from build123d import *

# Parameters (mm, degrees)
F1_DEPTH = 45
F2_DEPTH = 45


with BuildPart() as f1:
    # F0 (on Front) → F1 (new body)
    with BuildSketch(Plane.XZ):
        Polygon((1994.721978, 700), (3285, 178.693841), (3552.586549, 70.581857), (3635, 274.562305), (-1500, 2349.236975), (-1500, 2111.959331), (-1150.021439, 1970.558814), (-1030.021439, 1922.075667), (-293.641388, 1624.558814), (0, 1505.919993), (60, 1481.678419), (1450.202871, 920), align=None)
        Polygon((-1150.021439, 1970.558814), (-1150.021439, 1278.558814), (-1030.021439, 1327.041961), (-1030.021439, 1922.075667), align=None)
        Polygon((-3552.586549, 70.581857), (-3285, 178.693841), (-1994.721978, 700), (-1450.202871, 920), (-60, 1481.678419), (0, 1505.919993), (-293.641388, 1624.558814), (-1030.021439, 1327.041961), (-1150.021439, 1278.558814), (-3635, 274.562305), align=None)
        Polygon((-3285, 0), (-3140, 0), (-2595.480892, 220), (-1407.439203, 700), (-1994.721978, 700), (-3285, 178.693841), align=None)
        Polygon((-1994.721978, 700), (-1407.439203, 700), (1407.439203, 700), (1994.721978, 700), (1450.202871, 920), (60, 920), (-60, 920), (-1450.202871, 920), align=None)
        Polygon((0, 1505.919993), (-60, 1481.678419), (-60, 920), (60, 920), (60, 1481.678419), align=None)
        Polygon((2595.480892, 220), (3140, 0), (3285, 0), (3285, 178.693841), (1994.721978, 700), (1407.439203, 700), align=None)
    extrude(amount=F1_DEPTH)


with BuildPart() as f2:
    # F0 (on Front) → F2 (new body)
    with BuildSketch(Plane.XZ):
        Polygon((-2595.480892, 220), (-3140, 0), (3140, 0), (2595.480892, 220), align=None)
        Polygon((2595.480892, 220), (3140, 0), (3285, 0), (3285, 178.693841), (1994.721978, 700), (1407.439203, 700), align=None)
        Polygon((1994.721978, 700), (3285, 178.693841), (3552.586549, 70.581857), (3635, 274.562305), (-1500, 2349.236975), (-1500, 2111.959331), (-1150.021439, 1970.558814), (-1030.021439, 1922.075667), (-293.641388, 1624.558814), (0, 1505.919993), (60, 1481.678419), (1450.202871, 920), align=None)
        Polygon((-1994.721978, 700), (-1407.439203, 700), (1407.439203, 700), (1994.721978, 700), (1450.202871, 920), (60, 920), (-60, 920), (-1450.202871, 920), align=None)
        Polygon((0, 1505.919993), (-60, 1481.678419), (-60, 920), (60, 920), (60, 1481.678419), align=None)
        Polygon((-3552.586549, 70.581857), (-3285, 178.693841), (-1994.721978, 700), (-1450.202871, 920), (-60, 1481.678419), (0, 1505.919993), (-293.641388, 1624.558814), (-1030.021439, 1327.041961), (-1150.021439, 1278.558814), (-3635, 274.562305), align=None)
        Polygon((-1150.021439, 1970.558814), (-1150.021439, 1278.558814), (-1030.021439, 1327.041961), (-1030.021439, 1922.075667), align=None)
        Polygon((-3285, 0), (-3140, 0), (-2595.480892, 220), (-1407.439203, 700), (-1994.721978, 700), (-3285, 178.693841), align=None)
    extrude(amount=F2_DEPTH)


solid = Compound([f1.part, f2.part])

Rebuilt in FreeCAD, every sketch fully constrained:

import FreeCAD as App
import Part
import Sketcher

V = App.Vector
Q = App.Units.Quantity

doc = App.newDocument("Part")
body = doc.addObject("PartDesign::Body", "Body")

# Sketch on XZ plane
sketch1 = body.newObject("Sketcher::SketchObject", "Sketch")
sketch1.AttachmentSupport = (doc.getObject("XZ_Plane"), [""])
sketch1.MapMode = "FlatFace"
sketch1.addGeometry(Part.LineSegment(V(3285, 178.693841, 0), V(3552.586549, 70.581857, 0)), False)
sketch1.addGeometry(Part.LineSegment(V(3552.586549, 70.581857, 0), V(3635, 274.562305, 0)), False)
sketch1.addGeometry(Part.LineSegment(V(3635, 274.562305, 0), V(-1500, 2349.236975, 0)), False)
sketch1.addGeometry(Part.LineSegment(V(-1500, 2349.236975, 0), V(-1500, 2111.959331, 0)), False)
sketch1.addGeometry(Part.LineSegment(V(-1500, 2111.959331, 0), V(-1150.021439, 1970.558814, 0)), False)
sketch1.addGeometry(Part.LineSegment(V(-1150.021439, 1970.558814, 0), V(-1150.021439, 1278.558814, 0)), False)
sketch1.addGeometry(Part.LineSegment(V(-1150.021439, 1278.558814, 0), V(-3635, 274.562305, 0)), False)
sketch1.addGeometry(Part.LineSegment(V(-3635, 274.562305, 0), V(-3552.586549, 70.581857, 0)), False)
sketch1.addGeometry(Part.LineSegment(V(-3552.586549, 70.581857, 0), V(-3285, 178.693841, 0)), False)
sketch1.addGeometry(Part.LineSegment(V(-3285, 178.693841, 0), V(-3285, 0, 0)), False)
sketch1.addGeometry(Part.LineSegment(V(-3285, 0, 0), V(-3140, 0, 0)), False)
sketch1.addGeometry(Part.LineSegment(V(-3140, 0, 0), V(-2595.480892, 220, 0)), False)
sketch1.addGeometry(Part.LineSegment(V(-2595.480892, 220, 0), V(-1407.439203, 700, 0)), False)
sketch1.addGeometry(Part.LineSegment(V(-1407.439203, 700, 0), V(1407.439203, 700, 0)), False)
sketch1.addGeometry(Part.LineSegment(V(1407.439203, 700, 0), V(2595.480892, 220, 0)), False)
sketch1.addGeometry(Part.LineSegment(V(2595.480892, 220, 0), V(3140, 0, 0)), False)
sketch1.addGeometry(Part.LineSegment(V(3140, 0, 0), V(3285, 0, 0)), False)
sketch1.addGeometry(Part.LineSegment(V(3285, 0, 0), V(3285, 178.693841, 0)), False)
sketch1.addGeometry(Part.LineSegment(V(-1450.202871, 920, 0), V(-60, 1481.678419, 0)), False)
sketch1.addGeometry(Part.LineSegment(V(-60, 1481.678419, 0), V(-60, 920, 0)), False)
sketch1.addGeometry(Part.LineSegment(V(-60, 920, 0), V(-1450.202871, 920, 0)), False)
sketch1.addGeometry(Part.LineSegment(V(60, 1481.678419, 0), V(1450.202871, 920, 0)), False)
sketch1.addGeometry(Part.LineSegment(V(1450.202871, 920, 0), V(60, 920, 0)), False)
sketch1.addGeometry(Part.LineSegment(V(60, 920, 0), V(60, 1481.678419, 0)), False)
sketch1.addGeometry(Part.LineSegment(V(-1030.021439, 1327.041961, 0), V(-1030.021439, 1922.075667, 0)), False)
sketch1.addGeometry(Part.LineSegment(V(-1030.021439, 1922.075667, 0), V(-293.641388, 1624.558814, 0)), False)
sketch1.addGeometry(Part.LineSegment(V(-293.641388, 1624.558814, 0), V(-1030.021439, 1327.041961, 0)), False)
sketch1.addConstraint(Sketcher.Constraint("Coincident", 0, 2, 1, 1))
sketch1.addConstraint(Sketcher.Constraint("Coincident", 1, 2, 2, 1))
sketch1.addConstraint(Sketcher.Constraint("Coincident", 2, 2, 3, 1))
sketch1.addConstraint(Sketcher.Constraint("Coincident", 3, 2, 4, 1))
sketch1.addConstraint(Sketcher.Constraint("Coincident", 4, 2, 5, 1))
sketch1.addConstraint(Sketcher.Constraint("Coincident", 5, 2, 6, 1))
sketch1.addConstraint(Sketcher.Constraint("Coincident", 6, 2, 7, 1))
sketch1.addConstraint(Sketcher.Constraint("Coincident", 7, 2, 8, 1))
sketch1.addConstraint(Sketcher.Constraint("Coincident", 8, 2, 9, 1))
sketch1.addConstraint(Sketcher.Constraint("Coincident", 9, 2, 10, 1))
sketch1.addConstraint(Sketcher.Constraint("Coincident", 10, 2, 11, 1))
sketch1.addConstraint(Sketcher.Constraint("Coincident", 11, 2, 12, 1))
sketch1.addConstraint(Sketcher.Constraint("Coincident", 12, 2, 13, 1))
sketch1.addConstraint(Sketcher.Constraint("Coincident", 13, 2, 14, 1))
sketch1.addConstraint(Sketcher.Constraint("Coincident", 14, 2, 15, 1))
sketch1.addConstraint(Sketcher.Constraint("Coincident", 15, 2, 16, 1))
sketch1.addConstraint(Sketcher.Constraint("Coincident", 16, 2, 17, 1))
sketch1.addConstraint(Sketcher.Constraint("Coincident", 17, 2, 0, 1))
sketch1.addConstraint(Sketcher.Constraint("Coincident", 18, 2, 19, 1))
sketch1.addConstraint(Sketcher.Constraint("Coincident", 19, 2, 20, 1))
sketch1.addConstraint(Sketcher.Constraint("Coincident", 20, 2, 18, 1))
sketch1.addConstraint(Sketcher.Constraint("Coincident", 21, 2, 22, 1))
sketch1.addConstraint(Sketcher.Constraint("Coincident", 22, 2, 23, 1))
sketch1.addConstraint(Sketcher.Constraint("Coincident", 23, 2, 21, 1))
sketch1.addConstraint(Sketcher.Constraint("Coincident", 24, 2, 25, 1))
sketch1.addConstraint(Sketcher.Constraint("Coincident", 25, 2, 26, 1))
sketch1.addConstraint(Sketcher.Constraint("Coincident", 26, 2, 24, 1))
sketch1.addConstraint(Sketcher.Constraint("Vertical", 3))
sketch1.addConstraint(Sketcher.Constraint("Vertical", 5))
sketch1.addConstraint(Sketcher.Constraint("Vertical", 9))
sketch1.addConstraint(Sketcher.Constraint("Horizontal", 10))
sketch1.addConstraint(Sketcher.Constraint("Horizontal", 13))
sketch1.addConstraint(Sketcher.Constraint("Horizontal", 16))
sketch1.addConstraint(Sketcher.Constraint("Vertical", 17))
sketch1.addConstraint(Sketcher.Constraint("Vertical", 19))
sketch1.addConstraint(Sketcher.Constraint("Horizontal", 20))
sketch1.addConstraint(Sketcher.Constraint("Horizontal", 22))
sketch1.addConstraint(Sketcher.Constraint("Vertical", 23))
sketch1.addConstraint(Sketcher.Constraint("Vertical", 24))
sketch1.addConstraint(Sketcher.Constraint("Symmetric", 10, 2, 15, 2, -1, 1))
sketch1.addConstraint(Sketcher.Constraint("Symmetric", 1, 2, 6, 2, -2))
sketch1.addConstraint(Sketcher.Constraint("Symmetric", 0, 2, 7, 2, -2))
sketch1.addConstraint(Sketcher.Constraint("Symmetric", 11, 2, 14, 2, -2))
sketch1.addConstraint(Sketcher.Constraint("Symmetric", 9, 2, 16, 2, -2))
sketch1.addConstraint(Sketcher.Constraint("Symmetric", 20, 2, 21, 2, -2))
sketch1.addConstraint(Sketcher.Constraint("Symmetric", 18, 2, 23, 2, -2))
sketch1.addConstraint(Sketcher.Constraint("Perpendicular", 0, 1))
sketch1.addConstraint(Sketcher.Constraint("Perpendicular", 1, 2))
sketch1.addConstraint(Sketcher.Constraint("Parallel", 2, 4))
sketch1.addConstraint(Sketcher.Constraint("Perpendicular", 6, 7))
sketch1.addConstraint(Sketcher.Constraint("Perpendicular", 7, 8))
sketch1.addConstraint(Sketcher.Constraint("Parallel", 8, 11))
sketch1.addConstraint(Sketcher.Constraint("Parallel", 11, 12))
sketch1.addConstraint(Sketcher.Constraint("Parallel", 4, 14))
sketch1.addConstraint(Sketcher.Constraint("Parallel", 12, 18))
sketch1.addConstraint(Sketcher.Constraint("Parallel", 21, 25))
sketch1.addConstraint(Sketcher.Constraint("Parallel", 18, 26))
sketch1.addConstraint(Sketcher.Constraint("DistanceX", 10, 1, 10, 2, Q("145 mm")))
sketch1.addConstraint(Sketcher.Constraint("DistanceY", 5, 2, 5, 1, Q("692 mm")))
sketch1.addConstraint(Sketcher.Constraint("Angle", 0, Q("-22 deg")))
sketch1.addConstraint(Sketcher.Constraint("Distance", 1, Q("220 mm")))
sketch1.addConstraint(Sketcher.Constraint("DistanceX", -1, 1, 1, 2, Q("3635 mm")))
sketch1.addConstraint(Sketcher.Constraint("DistanceX", 2, 2, -1, 1, Q("1500 mm")))
sketch1.addConstraint(Sketcher.Constraint("DistanceX", 8, 2, -1, 1, Q("3285 mm")))
sketch1.addConstraint(Sketcher.Constraint("DistanceY", -1, 1, 11, 2, Q("220 mm")))
sketch1.addConstraint(Sketcher.Constraint("DistanceY", -1, 1, 12, 2, Q("700 mm")))
sketch1.addConstraint(Sketcher.Constraint("DistanceX", 18, 2, -1, 1, Q("60 mm")))
sketch1.addConstraint(Sketcher.Constraint("DistanceY", -1, 1, 19, 2, Q("920 mm")))
sketch1.addConstraint(Sketcher.Constraint("DistanceX", 4, 2, 24, 2, Q("120 mm")))
sketch1.addConstraint(Sketcher.Constraint("DistanceX", 20, 2, 20, 1, Q("1390.202871 mm")))
sketch1.addConstraint(Sketcher.Constraint("DistanceY", 9, 2, 9, 1, Q("178.693841 mm")))
sketch1.addConstraint(Sketcher.Constraint("Distance", 25, Q("794.211469 mm")))
sketch1.addConstraint(Sketcher.Constraint("DistanceY", 3, 2, 3, 1, Q("237.277644 mm")))
sketch1.addConstraint(Sketcher.Constraint("DistanceY", -1, 1, 26, 2, Q("1327.041961 mm")))
pad1 = body.newObject("PartDesign::Pad", "Pad")
pad1.Profile = sketch1
pad1.Length = 45
body2 = doc.addObject("PartDesign::Body", "Body001")

# Sketch on XZ plane
sketch2 = body2.newObject("Sketcher::SketchObject", "Sketch001")
sketch2.AttachmentSupport = (doc.getObject("XZ_Plane001"), [""])
sketch2.MapMode = "FlatFace"
sketch2.addGeometry(Part.LineSegment(V(3285, 0, 0), V(3285, 178.693841, 0)), False)
sketch2.addGeometry(Part.LineSegment(V(3285, 178.693841, 0), V(3552.586549, 70.581857, 0)), False)
sketch2.addGeometry(Part.LineSegment(V(3552.586549, 70.581857, 0), V(3635, 274.562305, 0)), False)
sketch2.addGeometry(Part.LineSegment(V(3635, 274.562305, 0), V(-1500, 2349.236975, 0)), False)
sketch2.addGeometry(Part.LineSegment(V(-1500, 2349.236975, 0), V(-1500, 2111.959331, 0)), False)
sketch2.addGeometry(Part.LineSegment(V(-1500, 2111.959331, 0), V(-1150.021439, 1970.558814, 0)), False)
sketch2.addGeometry(Part.LineSegment(V(-1150.021439, 1970.558814, 0), V(-1150.021439, 1278.558814, 0)), False)
sketch2.addGeometry(Part.LineSegment(V(-1150.021439, 1278.558814, 0), V(-3635, 274.562305, 0)), False)
sketch2.addGeometry(Part.LineSegment(V(-3635, 274.562305, 0), V(-3552.586549, 70.581857, 0)), False)
sketch2.addGeometry(Part.LineSegment(V(-3552.586549, 70.581857, 0), V(-3285, 178.693841, 0)), False)
sketch2.addGeometry(Part.LineSegment(V(-3285, 178.693841, 0), V(-3285, 0, 0)), False)
sketch2.addGeometry(Part.LineSegment(V(-3285, 0, 0), V(3285, 0, 0)), False)
sketch2.addGeometry(Part.LineSegment(V(-1407.439203, 700, 0), V(1407.439203, 700, 0)), False)
sketch2.addGeometry(Part.LineSegment(V(1407.439203, 700, 0), V(2595.480892, 220, 0)), False)
sketch2.addGeometry(Part.LineSegment(V(2595.480892, 220, 0), V(-2595.480892, 220, 0)), False)
sketch2.addGeometry(Part.LineSegment(V(-2595.480892, 220, 0), V(-1407.439203, 700, 0)), False)
sketch2.addGeometry(Part.LineSegment(V(-1030.021439, 1922.075667, 0), V(-293.641388, 1624.558814, 0)), False)
sketch2.addGeometry(Part.LineSegment(V(-293.641388, 1624.558814, 0), V(-1030.021439, 1327.041961, 0)), False)
sketch2.addGeometry(Part.LineSegment(V(-1030.021439, 1327.041961, 0), V(-1030.021439, 1922.075667, 0)), False)
sketch2.addGeometry(Part.LineSegment(V(-60, 1481.678419, 0), V(-60, 920, 0)), False)
sketch2.addGeometry(Part.LineSegment(V(-60, 920, 0), V(-1450.202871, 920, 0)), False)
sketch2.addGeometry(Part.LineSegment(V(-1450.202871, 920, 0), V(-60, 1481.678419, 0)), False)
sketch2.addGeometry(Part.LineSegment(V(60, 1481.678419, 0), V(1450.202871, 920, 0)), False)
sketch2.addGeometry(Part.LineSegment(V(1450.202871, 920, 0), V(60, 920, 0)), False)
sketch2.addGeometry(Part.LineSegment(V(60, 920, 0), V(60, 1481.678419, 0)), False)
sketch2.addConstraint(Sketcher.Constraint("Coincident", 0, 2, 1, 1))
sketch2.addConstraint(Sketcher.Constraint("Coincident", 1, 2, 2, 1))
sketch2.addConstraint(Sketcher.Constraint("Coincident", 2, 2, 3, 1))
sketch2.addConstraint(Sketcher.Constraint("Coincident", 3, 2, 4, 1))
sketch2.addConstraint(Sketcher.Constraint("Coincident", 4, 2, 5, 1))
sketch2.addConstraint(Sketcher.Constraint("Coincident", 5, 2, 6, 1))
sketch2.addConstraint(Sketcher.Constraint("Coincident", 6, 2, 7, 1))
sketch2.addConstraint(Sketcher.Constraint("Coincident", 7, 2, 8, 1))
sketch2.addConstraint(Sketcher.Constraint("Coincident", 8, 2, 9, 1))
sketch2.addConstraint(Sketcher.Constraint("Coincident", 9, 2, 10, 1))
sketch2.addConstraint(Sketcher.Constraint("Coincident", 10, 2, 11, 1))
sketch2.addConstraint(Sketcher.Constraint("Coincident", 11, 2, 0, 1))
sketch2.addConstraint(Sketcher.Constraint("Coincident", 12, 2, 13, 1))
sketch2.addConstraint(Sketcher.Constraint("Coincident", 13, 2, 14, 1))
sketch2.addConstraint(Sketcher.Constraint("Coincident", 14, 2, 15, 1))
sketch2.addConstraint(Sketcher.Constraint("Coincident", 15, 2, 12, 1))
sketch2.addConstraint(Sketcher.Constraint("Coincident", 16, 2, 17, 1))
sketch2.addConstraint(Sketcher.Constraint("Coincident", 17, 2, 18, 1))
sketch2.addConstraint(Sketcher.Constraint("Coincident", 18, 2, 16, 1))
sketch2.addConstraint(Sketcher.Constraint("Coincident", 19, 2, 20, 1))
sketch2.addConstraint(Sketcher.Constraint("Coincident", 20, 2, 21, 1))
sketch2.addConstraint(Sketcher.Constraint("Coincident", 21, 2, 19, 1))
sketch2.addConstraint(Sketcher.Constraint("Coincident", 22, 2, 23, 1))
sketch2.addConstraint(Sketcher.Constraint("Coincident", 23, 2, 24, 1))
sketch2.addConstraint(Sketcher.Constraint("Coincident", 24, 2, 22, 1))
sketch2.addConstraint(Sketcher.Constraint("Vertical", 0))
sketch2.addConstraint(Sketcher.Constraint("Vertical", 4))
sketch2.addConstraint(Sketcher.Constraint("Vertical", 6))
sketch2.addConstraint(Sketcher.Constraint("Vertical", 10))
sketch2.addConstraint(Sketcher.Constraint("Horizontal", 11))
sketch2.addConstraint(Sketcher.Constraint("Horizontal", 12))
sketch2.addConstraint(Sketcher.Constraint("Horizontal", 14))
sketch2.addConstraint(Sketcher.Constraint("Vertical", 18))
sketch2.addConstraint(Sketcher.Constraint("Vertical", 19))
sketch2.addConstraint(Sketcher.Constraint("Horizontal", 20))
sketch2.addConstraint(Sketcher.Constraint("Horizontal", 23))
sketch2.addConstraint(Sketcher.Constraint("Vertical", 24))
sketch2.addConstraint(Sketcher.Constraint("Symmetric", 10, 2, 11, 2, -1, 1))
sketch2.addConstraint(Sketcher.Constraint("Symmetric", 2, 2, 7, 2, -2))
sketch2.addConstraint(Sketcher.Constraint("Symmetric", 1, 2, 8, 2, -2))
sketch2.addConstraint(Sketcher.Constraint("Symmetric", 20, 2, 22, 2, -2))
sketch2.addConstraint(Sketcher.Constraint("Symmetric", 21, 2, 24, 2, -2))
sketch2.addConstraint(Sketcher.Constraint("Perpendicular", 1, 2))
sketch2.addConstraint(Sketcher.Constraint("Perpendicular", 2, 3))
sketch2.addConstraint(Sketcher.Constraint("Parallel", 3, 5))
sketch2.addConstraint(Sketcher.Constraint("Perpendicular", 7, 8))
sketch2.addConstraint(Sketcher.Constraint("Perpendicular", 8, 9))
sketch2.addConstraint(Sketcher.Constraint("Parallel", 5, 13))
sketch2.addConstraint(Sketcher.Constraint("Parallel", 9, 15))
sketch2.addConstraint(Sketcher.Constraint("Parallel", 13, 16))
sketch2.addConstraint(Sketcher.Constraint("Parallel", 15, 17))
sketch2.addConstraint(Sketcher.Constraint("Parallel", 17, 21))
sketch2.addConstraint(Sketcher.Constraint("DistanceX", 11, 1, 11, 2, Q("6570 mm")))
sketch2.addConstraint(Sketcher.Constraint("DistanceY", 6, 2, 6, 1, Q("692 mm")))
sketch2.addConstraint(Sketcher.Constraint("Angle", 1, Q("-22 deg")))
sketch2.addConstraint(Sketcher.Constraint("Distance", 2, Q("220 mm")))
sketch2.addConstraint(Sketcher.Constraint("DistanceX", -1, 1, 2, 2, Q("3635 mm")))
sketch2.addConstraint(Sketcher.Constraint("DistanceX", 3, 2, -1, 1, Q("1500 mm")))
sketch2.addConstraint(Sketcher.Constraint("DistanceY", -1, 1, 12, 2, Q("700 mm")))
sketch2.addConstraint(Sketcher.Constraint("DistanceY", -1, 1, 13, 2, Q("220 mm")))
sketch2.addConstraint(Sketcher.Constraint("DistanceX", 19, 2, -1, 1, Q("60 mm")))
sketch2.addConstraint(Sketcher.Constraint("DistanceY", -1, 1, 19, 2, Q("920 mm")))
sketch2.addConstraint(Sketcher.Constraint("DistanceY", 16, 2, 5, 2, Q("346 mm")))
sketch2.addConstraint(Sketcher.Constraint("DistanceX", 6, 2, 17, 2, Q("120 mm")))
sketch2.addConstraint(Sketcher.Constraint("DistanceX", 20, 2, 20, 1, Q("1390.202871 mm")))
sketch2.addConstraint(Sketcher.Constraint("DistanceY", 0, 1, 0, 2, Q("178.693841 mm")))
sketch2.addConstraint(Sketcher.Constraint("Distance", 16, Q("794.211469 mm")))
sketch2.addConstraint(Sketcher.Constraint("DistanceX", 12, 1, 12, 2, Q("2814.878406 mm")))
sketch2.addConstraint(Sketcher.Constraint("DistanceY", 4, 2, 4, 1, Q("237.277644 mm")))
sketch2.addConstraint(Sketcher.Constraint("DistanceX", 13, 2, 0, 2, Q("689.519108 mm")))
pad2 = body2.newObject("PartDesign::Pad", "Pad001")
pad2.Profile = sketch2
pad2.Length = 45

doc.recompute()
